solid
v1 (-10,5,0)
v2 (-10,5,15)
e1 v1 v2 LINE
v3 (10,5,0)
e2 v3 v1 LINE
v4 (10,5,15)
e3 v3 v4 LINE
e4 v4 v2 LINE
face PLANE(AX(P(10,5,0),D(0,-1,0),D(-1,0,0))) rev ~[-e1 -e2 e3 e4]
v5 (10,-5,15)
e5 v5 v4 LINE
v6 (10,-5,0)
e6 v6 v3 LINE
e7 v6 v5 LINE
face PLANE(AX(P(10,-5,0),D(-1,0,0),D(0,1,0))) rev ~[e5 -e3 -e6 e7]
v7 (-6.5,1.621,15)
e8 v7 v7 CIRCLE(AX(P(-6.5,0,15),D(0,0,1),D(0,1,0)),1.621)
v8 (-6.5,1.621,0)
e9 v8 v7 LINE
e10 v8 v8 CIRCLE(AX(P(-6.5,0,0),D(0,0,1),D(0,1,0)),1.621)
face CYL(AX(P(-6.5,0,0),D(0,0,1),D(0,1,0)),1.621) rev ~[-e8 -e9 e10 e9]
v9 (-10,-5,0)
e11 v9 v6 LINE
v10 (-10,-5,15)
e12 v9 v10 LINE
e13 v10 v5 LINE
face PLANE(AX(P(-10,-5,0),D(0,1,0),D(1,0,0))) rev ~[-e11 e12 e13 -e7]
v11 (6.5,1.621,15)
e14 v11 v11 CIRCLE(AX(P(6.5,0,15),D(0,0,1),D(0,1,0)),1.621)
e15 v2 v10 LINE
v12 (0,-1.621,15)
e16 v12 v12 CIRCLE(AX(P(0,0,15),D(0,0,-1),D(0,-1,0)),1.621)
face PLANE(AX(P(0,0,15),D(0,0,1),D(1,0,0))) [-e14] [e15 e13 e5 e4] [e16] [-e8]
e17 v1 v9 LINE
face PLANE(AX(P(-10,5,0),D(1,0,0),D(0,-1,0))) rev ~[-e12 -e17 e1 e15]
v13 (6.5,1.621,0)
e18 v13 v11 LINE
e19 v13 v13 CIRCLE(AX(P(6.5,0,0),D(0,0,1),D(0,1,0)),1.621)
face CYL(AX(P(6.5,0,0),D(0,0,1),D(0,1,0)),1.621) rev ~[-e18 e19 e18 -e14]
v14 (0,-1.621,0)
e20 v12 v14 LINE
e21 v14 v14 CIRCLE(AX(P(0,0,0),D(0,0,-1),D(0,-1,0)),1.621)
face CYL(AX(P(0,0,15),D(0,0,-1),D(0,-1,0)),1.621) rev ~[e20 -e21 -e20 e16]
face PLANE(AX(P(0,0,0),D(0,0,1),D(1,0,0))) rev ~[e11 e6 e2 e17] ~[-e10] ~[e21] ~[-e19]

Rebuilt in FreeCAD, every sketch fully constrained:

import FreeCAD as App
import Part
import Sketcher
from FreeCAD import Vector
Q = App.Units.Quantity


def add_polygon(sketch, points):
    """Adds a closed chain of lines whose ends are joined by coincident constraints."""
    first, n = sketch.GeometryCount, len(points)
    for a, b in zip(points, points[1:] + points[:1]):
        sketch.addGeometry(Part.LineSegment(App.Vector(*a, 0), App.Vector(*b, 0)), False)
    for i in range(n):
        sketch.addConstraint(Sketcher.Constraint("Coincident", first + i, 2, first + (i + 1) % n, 1))

doc = App.newDocument("Part")
params = doc.addObject("Spreadsheet::Sheet", "Params")
for row, (alias, value) in enumerate([
    ("sketch1_width", "20 mm"),
    ("sketch1_height", "10 mm"),
    ("pad1_length", "15 mm"),
    ("hole_diameter", "3.242 mm"),
    ("hole2_diameter", "3.242 mm"),
], start=1):
    params.set(f"A{row}", alias)
    params.set(f"B{row}", "=" + value)
    params.setAlias(f"B{row}", alias)

body = doc.addObject("PartDesign::Body", "Body")

sketch1 = doc.addObject("Sketcher::SketchObject", "Sketch")
body.addObject(sketch1)
sketch1.AttachmentSupport = (doc.XY_Plane, [""])
sketch1.MapMode = "FlatFace"
add_polygon(sketch1, [(-10, 5), (-10, -5), (10, -5), (10, 5)])
sketch1.addConstraint([
    Sketcher.Constraint("Vertical", 0),
    Sketcher.Constraint("Horizontal", 1),
    Sketcher.Constraint("Vertical", 2),
    Sketcher.Constraint("Horizontal", 3),
    Sketcher.Constraint("Symmetric", 0, 2, 2, 2, -1, 1),
    Sketcher.Constraint("DistanceX", 1, 1, 1, 2, Q("20 mm")),
    Sketcher.Constraint("DistanceY", 0, 2, 0, 1, Q("10 mm")),
])
sketch1.setExpression("Constraints[9]", "Params.sketch1_width")
sketch1.setExpression("Constraints[10]", "Params.sketch1_height")
pad1 = doc.addObject("PartDesign::Pad", "Pad")
body.addObject(pad1)
pad1.Profile = sketch1
pad1.setExpression("Length", "Params.pad1_length")

sketch2 = doc.addObject("Sketcher::SketchObject", "Sketch001")
body.addObject(sketch2)
sketch2.AttachmentSupport = (doc.XY_Plane, [""])
sketch2.MapMode = "FlatFace"
sketch2.AttachmentOffset = App.Placement(Vector(0, 0, 15), App.Rotation())
sketch2.addGeometry(Part.Circle(Vector(0, 0, 0), Vector(0, 0, 1), 1.6), False)
sketch2.addConstraint([
    Sketcher.Constraint("Coincident", 0, 3, -1, 1),
    Sketcher.Constraint("Diameter", 0, Q("3.242 mm")),
])
doc.recompute()
hole = doc.addObject("PartDesign::Hole", "Hole")
body.addObject(hole)
hole.Profile = sketch2
hole.ThreadType = "None"
hole.setExpression("Diameter", "Params.hole_diameter")
hole.DepthType = "ThroughAll"

sketch3 = doc.addObject("Sketcher::SketchObject", "Sketch002")
body.addObject(sketch3)
sketch3.AttachmentSupport = (doc.XY_Plane, [""])
sketch3.MapMode = "FlatFace"
sketch3.addGeometry([
    Part.Circle(Vector(6.5, 0, 0), Vector(0, 0, 1), 1.6),
    Part.Circle(Vector(-6.5, 0, 0), Vector(0, 0, 1), 1.6),
], False)
sketch3.addConstraint([
    Sketcher.Constraint("Equal", 0, 1),
    Sketcher.Constraint("Symmetric", 0, 3, 1, 3, -1, 1),
    Sketcher.Constraint("PointOnObject", 0, 3, -1),
    Sketcher.Constraint("Diameter", 0, Q("3.242 mm")),
    Sketcher.Constraint("DistanceX", 1, 3, 0, 3, Q("13 mm")),
])
doc.recompute()
hole2 = doc.addObject("PartDesign::Hole", "Hole001")
body.addObject(hole2)
hole2.Profile = sketch3
hole2.ThreadType = "None"
hole2.setExpression("Diameter", "Params.hole2_diameter")
hole2.DepthType = "ThroughAll"
hole2.Reversed = True

doc.recompute()
